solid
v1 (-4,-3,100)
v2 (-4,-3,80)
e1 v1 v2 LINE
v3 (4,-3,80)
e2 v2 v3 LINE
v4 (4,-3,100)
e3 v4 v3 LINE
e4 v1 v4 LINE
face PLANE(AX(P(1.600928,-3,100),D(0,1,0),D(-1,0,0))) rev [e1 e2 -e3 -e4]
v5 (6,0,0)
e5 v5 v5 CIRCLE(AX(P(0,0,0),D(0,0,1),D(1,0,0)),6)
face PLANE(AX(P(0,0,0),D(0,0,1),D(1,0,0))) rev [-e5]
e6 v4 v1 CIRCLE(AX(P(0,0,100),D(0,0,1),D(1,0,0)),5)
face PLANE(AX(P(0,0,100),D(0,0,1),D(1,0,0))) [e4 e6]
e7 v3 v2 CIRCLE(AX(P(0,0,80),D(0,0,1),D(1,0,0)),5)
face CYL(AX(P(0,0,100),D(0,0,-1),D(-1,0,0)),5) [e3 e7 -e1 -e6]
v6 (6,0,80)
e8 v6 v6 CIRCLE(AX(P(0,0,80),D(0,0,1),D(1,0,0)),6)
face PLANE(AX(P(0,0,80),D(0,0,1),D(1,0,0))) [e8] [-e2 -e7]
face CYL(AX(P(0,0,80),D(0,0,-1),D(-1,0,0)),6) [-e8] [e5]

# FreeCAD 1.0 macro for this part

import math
import FreeCAD as App
import Part
import Sketcher
Q = App.Units.Quantity

doc = App.newDocument("Part")
body = doc.addObject("PartDesign::Body", "Body")

sketch1 = body.newObject("Sketcher::SketchObject", "Sketch")
sketch1.AttachmentSupport = (doc.getObject("XY_Plane"), [""])
sketch1.MapMode = "FlatFace"
sketch1.addGeometry(Part.Circle(App.Vector(0, 0, 0), App.Vector(0, 0, 1), 6), False)
sketch1.addConstraint(Sketcher.Constraint("Coincident", 0, 3, -1, 1))
sketch1.addConstraint(Sketcher.Constraint("Diameter", 0, Q("12 mm")))
pad1 = body.newObject("PartDesign::Pad", "Pad")
pad1.Profile = sketch1
pad1.Length = 80

sketch2 = body.newObject("Sketcher::SketchObject", "Sketch001")
sketch2.AttachmentSupport = (doc.getObject("XY_Plane"), [""])
sketch2.MapMode = "FlatFace"
sketch2.AttachmentOffset = App.Placement(App.Vector(0, 0, 80), App.Rotation())
sketch2.addGeometry(Part.LineSegment(App.Vector(-4, -3, 0), App.Vector(4, -3, 0)), False)
sketch2.addGeometry(Part.ArcOfCircle(Part.Circle(App.Vector(0, 0, 0), App.Vector(0, 0, 1), 5), math.radians(-36.869898), math.radians(216.869898)), False)
sketch2.addConstraint(Sketcher.Constraint("Coincident", 0, 1, 1, 2))
sketch2.addConstraint(Sketcher.Constraint("Coincident", 1, 1, 0, 2))
sketch2.addConstraint(Sketcher.Constraint("Horizontal", 0))
sketch2.addConstraint(Sketcher.Constraint("Coincident", 1, 3, -1, 1))
sketch2.addConstraint(Sketcher.Constraint("Radius", 1, Q("5 mm")))
sketch2.addConstraint(Sketcher.Constraint("DistanceX", 0, 1, 0, 2, Q("8 mm")))
pad2 = body.newObject("PartDesign::Pad", "Pad001")
pad2.Profile = sketch2
pad2.Length = 20

doc.recompute()
